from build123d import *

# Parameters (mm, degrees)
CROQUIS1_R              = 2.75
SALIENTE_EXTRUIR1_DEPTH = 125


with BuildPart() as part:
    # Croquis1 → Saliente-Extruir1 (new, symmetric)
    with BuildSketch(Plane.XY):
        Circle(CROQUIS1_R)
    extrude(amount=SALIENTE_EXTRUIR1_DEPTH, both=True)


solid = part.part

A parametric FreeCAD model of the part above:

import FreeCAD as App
import Part
import Sketcher

doc = App.newDocument("Part")
body = doc.addObject("PartDesign::Body", "Body")

# Sketch on XY plane
sketch1 = body.newObject("Sketcher::SketchObject", "Sketch")
sketch1.AttachmentSupport = (doc.getObject("XY_Plane"), [""])
sketch1.MapMode = "FlatFace"
sketch1.addGeometry(Part.Circle(App.Vector(0, 0, 0), App.Vector(0, 0, 1), 2.75), False)
sketch1.addConstraint([
    Sketcher.Constraint("Coincident", 0, 3, -1, 1),
    Sketcher.Constraint("Diameter", 0, 5.5),
])
pad1 = body.newObject("PartDesign::Pad", "Pad")
pad1.Profile = sketch1
pad1.Length = 250
pad1.Midplane = True

doc.recompute()
